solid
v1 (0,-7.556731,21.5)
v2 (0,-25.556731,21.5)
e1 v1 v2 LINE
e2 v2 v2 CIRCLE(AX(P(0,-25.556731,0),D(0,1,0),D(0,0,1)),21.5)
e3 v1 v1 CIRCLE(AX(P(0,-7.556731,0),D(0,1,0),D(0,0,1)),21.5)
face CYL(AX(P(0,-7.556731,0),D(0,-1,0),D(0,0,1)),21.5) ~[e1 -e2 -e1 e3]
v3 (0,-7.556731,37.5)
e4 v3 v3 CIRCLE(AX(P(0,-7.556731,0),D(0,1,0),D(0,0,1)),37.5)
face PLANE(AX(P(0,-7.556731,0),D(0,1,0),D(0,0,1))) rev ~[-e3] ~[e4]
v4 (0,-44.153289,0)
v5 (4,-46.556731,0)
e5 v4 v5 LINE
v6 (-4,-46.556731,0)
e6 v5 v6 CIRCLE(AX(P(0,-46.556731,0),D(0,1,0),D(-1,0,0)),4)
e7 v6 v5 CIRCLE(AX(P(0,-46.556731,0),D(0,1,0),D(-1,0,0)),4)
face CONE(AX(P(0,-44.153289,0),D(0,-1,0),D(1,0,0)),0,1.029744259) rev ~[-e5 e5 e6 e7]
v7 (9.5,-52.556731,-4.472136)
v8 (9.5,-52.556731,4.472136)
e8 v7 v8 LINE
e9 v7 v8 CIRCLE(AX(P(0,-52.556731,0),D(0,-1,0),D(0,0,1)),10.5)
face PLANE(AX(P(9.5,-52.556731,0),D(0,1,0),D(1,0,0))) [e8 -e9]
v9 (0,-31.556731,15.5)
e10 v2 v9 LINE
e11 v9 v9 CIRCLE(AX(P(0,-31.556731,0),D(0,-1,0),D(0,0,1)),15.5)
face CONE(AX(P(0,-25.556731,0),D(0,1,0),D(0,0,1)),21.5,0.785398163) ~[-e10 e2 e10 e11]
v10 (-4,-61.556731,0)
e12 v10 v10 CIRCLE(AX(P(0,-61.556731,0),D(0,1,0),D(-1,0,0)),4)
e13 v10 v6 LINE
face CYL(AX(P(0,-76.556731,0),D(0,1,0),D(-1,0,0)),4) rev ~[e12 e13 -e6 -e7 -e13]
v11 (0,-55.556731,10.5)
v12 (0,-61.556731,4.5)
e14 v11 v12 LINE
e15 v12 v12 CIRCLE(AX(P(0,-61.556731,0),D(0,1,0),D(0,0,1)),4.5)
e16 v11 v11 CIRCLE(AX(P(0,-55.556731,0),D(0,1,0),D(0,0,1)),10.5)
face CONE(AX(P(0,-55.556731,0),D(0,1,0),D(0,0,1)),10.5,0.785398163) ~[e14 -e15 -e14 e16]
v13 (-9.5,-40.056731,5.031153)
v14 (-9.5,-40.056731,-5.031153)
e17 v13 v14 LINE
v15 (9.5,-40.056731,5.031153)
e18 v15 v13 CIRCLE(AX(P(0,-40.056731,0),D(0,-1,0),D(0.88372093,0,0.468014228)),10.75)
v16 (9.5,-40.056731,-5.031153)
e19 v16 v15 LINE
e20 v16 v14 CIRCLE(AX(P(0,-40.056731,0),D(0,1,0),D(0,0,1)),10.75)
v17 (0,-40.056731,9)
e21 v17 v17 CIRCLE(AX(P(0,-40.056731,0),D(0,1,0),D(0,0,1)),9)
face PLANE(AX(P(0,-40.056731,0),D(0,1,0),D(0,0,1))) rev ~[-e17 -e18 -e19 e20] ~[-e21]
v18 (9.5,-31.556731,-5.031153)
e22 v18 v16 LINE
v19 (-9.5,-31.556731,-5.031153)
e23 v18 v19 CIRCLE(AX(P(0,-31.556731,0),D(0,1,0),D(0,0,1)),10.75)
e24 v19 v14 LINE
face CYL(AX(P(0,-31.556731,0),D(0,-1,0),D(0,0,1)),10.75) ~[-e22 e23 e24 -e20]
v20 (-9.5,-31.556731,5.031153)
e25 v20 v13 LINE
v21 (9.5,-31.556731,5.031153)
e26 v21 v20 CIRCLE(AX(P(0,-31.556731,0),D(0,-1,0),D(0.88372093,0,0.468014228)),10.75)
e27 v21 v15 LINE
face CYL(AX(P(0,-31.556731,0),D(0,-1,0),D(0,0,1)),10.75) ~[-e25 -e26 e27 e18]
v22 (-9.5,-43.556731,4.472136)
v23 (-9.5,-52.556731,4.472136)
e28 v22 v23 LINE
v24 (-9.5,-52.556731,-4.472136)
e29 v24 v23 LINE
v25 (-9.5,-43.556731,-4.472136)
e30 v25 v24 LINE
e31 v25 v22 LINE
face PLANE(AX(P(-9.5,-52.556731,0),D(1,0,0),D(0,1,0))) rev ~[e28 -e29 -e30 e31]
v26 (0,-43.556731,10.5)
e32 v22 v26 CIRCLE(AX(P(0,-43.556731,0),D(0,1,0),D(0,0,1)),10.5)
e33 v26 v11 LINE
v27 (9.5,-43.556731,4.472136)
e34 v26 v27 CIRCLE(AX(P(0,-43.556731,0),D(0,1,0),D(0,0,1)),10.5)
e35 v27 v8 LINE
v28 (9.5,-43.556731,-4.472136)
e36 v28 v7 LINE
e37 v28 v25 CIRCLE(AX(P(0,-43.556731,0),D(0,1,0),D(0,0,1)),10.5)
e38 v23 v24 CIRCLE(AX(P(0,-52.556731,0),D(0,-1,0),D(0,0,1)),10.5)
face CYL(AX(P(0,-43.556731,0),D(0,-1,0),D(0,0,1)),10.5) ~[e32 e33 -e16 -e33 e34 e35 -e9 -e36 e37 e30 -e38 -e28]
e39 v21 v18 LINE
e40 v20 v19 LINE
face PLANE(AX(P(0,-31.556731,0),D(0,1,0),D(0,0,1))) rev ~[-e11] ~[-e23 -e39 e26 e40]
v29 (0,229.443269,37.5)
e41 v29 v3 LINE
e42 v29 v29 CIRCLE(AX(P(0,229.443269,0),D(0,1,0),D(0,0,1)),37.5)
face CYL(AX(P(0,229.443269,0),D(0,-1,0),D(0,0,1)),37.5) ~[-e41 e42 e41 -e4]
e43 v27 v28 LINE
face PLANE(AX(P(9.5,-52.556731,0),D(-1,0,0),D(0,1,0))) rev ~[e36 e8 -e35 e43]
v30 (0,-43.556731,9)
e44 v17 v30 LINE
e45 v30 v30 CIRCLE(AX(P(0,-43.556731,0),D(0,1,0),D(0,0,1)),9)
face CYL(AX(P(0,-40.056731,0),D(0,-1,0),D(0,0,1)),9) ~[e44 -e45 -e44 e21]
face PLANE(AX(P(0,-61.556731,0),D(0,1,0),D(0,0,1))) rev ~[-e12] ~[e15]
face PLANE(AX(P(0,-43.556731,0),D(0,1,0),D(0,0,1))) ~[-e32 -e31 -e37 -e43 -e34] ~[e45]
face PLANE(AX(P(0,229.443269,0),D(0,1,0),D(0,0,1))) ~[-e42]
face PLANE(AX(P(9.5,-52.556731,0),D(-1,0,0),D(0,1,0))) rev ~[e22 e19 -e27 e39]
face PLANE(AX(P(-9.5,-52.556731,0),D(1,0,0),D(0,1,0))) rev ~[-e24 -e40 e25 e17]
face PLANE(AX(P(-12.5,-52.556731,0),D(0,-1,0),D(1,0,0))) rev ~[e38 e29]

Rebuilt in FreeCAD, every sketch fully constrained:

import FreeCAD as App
import Part
import Sketcher
from FreeCAD import Vector
Q = App.Units.Quantity

doc = App.newDocument("Part")
params = doc.addObject("Spreadsheet::Sheet", "Params")
for row, (alias, value) in enumerate([
    ("sketch1_width", "291 mm"),
    ("sketch1_width2", "237 mm"),
    ("sketch1_width3", "18 mm"),
    ("sketch1_width4", "12 mm"),
    ("sketch1_height", "16 mm"),
    ("revolution_angle", "360 deg"),
    ("sketch2_diameter", "8 mm"),
    ("hole_diameter", "8 mm"),
    ("hole_depth", "15 mm"),
    ("sketch3_width", "3 mm"),
    ("sketch3_height", "21 mm"),
    ("pocket1_length", "25 mm"),
], start=1):
    params.set(f"A{row}", alias)
    params.set(f"B{row}", "=" + value)
    params.setAlias(f"B{row}", alias)

body = doc.addObject("PartDesign::Body", "Body")

# Sketch on YZ plane
sketch1 = doc.addObject("Sketcher::SketchObject", "Sketch")
body.addObject(sketch1)
sketch1.AttachmentSupport = (doc.YZ_Plane, [""])
sketch1.MapMode = "FlatFace"
sketch1.addGeometry([
    Part.LineSegment(Vector(-61.6, 4.5, 0), Vector(-61.6, 0, 0)),  # 0
    Part.LineSegment(Vector(-61.6, 0, 0), Vector(229.4, 0, 0)),  # 1
    Part.LineSegment(Vector(229.4, 0, 0), Vector(229.4, 37.5, 0)),  # 2
    Part.LineSegment(Vector(229.4, 37.5, 0), Vector(-7.6, 37.5, 0)),  # 3
    Part.LineSegment(Vector(-7.6, 37.5, 0), Vector(-7.6, 21.5, 0)),  # 4
    Part.LineSegment(Vector(-7.6, 21.5, 0), Vector(-25.6, 21.5, 0)),  # 5
    Part.LineSegment(Vector(-25.6, 21.5, 0), Vector(-31.6, 15.5, 0)),  # 6
    Part.LineSegment(Vector(-31.6, 15.5, 0), Vector(-31.6, 10.8, 0)),  # 7
    Part.LineSegment(Vector(-31.6, 10.8, 0), Vector(-40.1, 10.8, 0)),  # 8
    Part.LineSegment(Vector(-40.1, 10.8, 0), Vector(-40.1, 9, 0)),  # 9
    Part.LineSegment(Vector(-40.1, 9, 0), Vector(-43.6, 9, 0)),  # 10
    Part.LineSegment(Vector(-43.6, 9, 0), Vector(-43.6, 10.5, 0)),  # 11
    Part.LineSegment(Vector(-43.6, 10.5, 0), Vector(-55.6, 10.5, 0)),  # 12
    Part.LineSegment(Vector(-55.6, 10.5, 0), Vector(-61.6, 4.5, 0)),  # 13
], False)
sketch1.addConstraint([
    Sketcher.Constraint("Coincident", 0, 2, 1, 1),
    Sketcher.Constraint("Coincident", 1, 2, 2, 1),
    Sketcher.Constraint("Coincident", 2, 2, 3, 1),
    Sketcher.Constraint("Coincident", 3, 2, 4, 1),
    Sketcher.Constraint("Coincident", 4, 2, 5, 1),
    Sketcher.Constraint("Coincident", 5, 2, 6, 1),
    Sketcher.Constraint("Coincident", 6, 2, 7, 1),
    Sketcher.Constraint("Coincident", 7, 2, 8, 1),
    Sketcher.Constraint("Coincident", 8, 2, 9, 1),
    Sketcher.Constraint("Coincident", 9, 2, 10, 1),
    Sketcher.Constraint("Coincident", 10, 2, 11, 1),
    Sketcher.Constraint("Coincident", 11, 2, 12, 1),
    Sketcher.Constraint("Coincident", 12, 2, 13, 1),
    Sketcher.Constraint("Coincident", 13, 2, 0, 1),
    Sketcher.Constraint("Vertical", 0),
    Sketcher.Constraint("Horizontal", 1),
    Sketcher.Constraint("Vertical", 2),
    Sketcher.Constraint("Horizontal", 3),
    Sketcher.Constraint("Vertical", 4),
    Sketcher.Constraint("Horizontal", 5),
    Sketcher.Constraint("Vertical", 7),
    Sketcher.Constraint("Horizontal", 8),
    Sketcher.Constraint("Vertical", 9),
    Sketcher.Constraint("Horizontal", 10),
    Sketcher.Constraint("Vertical", 11),
    Sketcher.Constraint("Horizontal", 12),
    Sketcher.Constraint("PointOnObject", 0, 2, -1),
    Sketcher.Constraint("Parallel", 6, 13),
    Sketcher.Constraint("Equal", 6, 13),
    Sketcher.Constraint("DistanceX", 1, 1, 1, 2, 291.0),
    Sketcher.Constraint("DistanceX", 3, 2, 3, 1, 237.0),
    Sketcher.Constraint("DistanceX", 5, 2, 5, 1, 18.0),
    Sketcher.Constraint("DistanceX", 12, 2, 12, 1, 12.0),
    Sketcher.Constraint("DistanceY", 4, 2, 4, 1, 16.0),
    Sketcher.Constraint("Angle", 6, Q("-135 deg")),
    Sketcher.Constraint("DistanceX", 8, 2, 8, 1, 8.5),
    Sketcher.Constraint("DistanceX", 10, 2, 10, 1, 3.5),
    Sketcher.Constraint("DistanceY", 0, 2, 0, 1, 4.5),
    Sketcher.Constraint("DistanceY", 2, 1, 2, 2, 37.5),
    Sketcher.Constraint("DistanceY", 11, 1, 11, 2, 1.5),
    Sketcher.Constraint("DistanceY", 7, 2, 7, 1, 4.75),
    Sketcher.Constraint("DistanceX", 0, 2, -1, 1, 61.556731),
])
sketch1.setExpression("Constraints[29]", "Params.sketch1_width")
sketch1.setExpression("Constraints[30]", "Params.sketch1_width2")
sketch1.setExpression("Constraints[31]", "Params.sketch1_width3")
sketch1.setExpression("Constraints[32]", "Params.sketch1_width4")
sketch1.setExpression("Constraints[33]", "Params.sketch1_height")
revolution = doc.addObject("PartDesign::Revolution", "Revolution")
body.addObject(revolution)
revolution.Profile = sketch1
revolution.ReferenceAxis = (sketch1, ["H_Axis"])
revolution.setExpression("Angle", "Params.revolution_angle")

# Sketch on XZ plane
sketch2 = doc.addObject("Sketcher::SketchObject", "Sketch001")
body.addObject(sketch2)
sketch2.AttachmentSupport = (doc.XZ_Plane, [""])
sketch2.MapMode = "FlatFace"
sketch2.AttachmentOffset = App.Placement(Vector(0, 0, 61.556731), App.Rotation())
sketch2.addGeometry(Part.Circle(Vector(0, 0, 0), Vector(0, 0, 1), 4), False)
sketch2.addConstraint([
    Sketcher.Constraint("Coincident", 0, 3, -1, 1),
    Sketcher.Constraint("Diameter", 0, 8.0),
])
sketch2.setExpression("Constraints[1]", "Params.sketch2_diameter")
doc.recompute()
hole = doc.addObject("PartDesign::Hole", "Hole")
body.addObject(hole)
hole.Profile = sketch2
hole.ThreadType = "None"
hole.setExpression("Diameter", "Params.hole_diameter")
hole.DepthType = "Dimension"
hole.setExpression("Depth", "Params.hole_depth")
hole.DrillPoint = "Angled"
hole.DrillPointAngle = 118

# Sketch on XY plane
sketch3 = doc.addObject("Sketcher::SketchObject", "Sketch002")
body.addObject(sketch3)
sketch3.AttachmentSupport = (doc.XY_Plane, [""])
sketch3.MapMode = "FlatFace"
sketch3.addGeometry([
    Part.LineSegment(Vector(9.5, -31.6, 0), Vector(9.5, -52.6, 0)),  # 0
    Part.LineSegment(Vector(9.5, -52.6, 0), Vector(12.5, -52.6, 0)),  # 1
    Part.LineSegment(Vector(12.5, -52.6, 0), Vector(12.5, -31.6, 0)),  # 2
    Part.LineSegment(Vector(12.5, -31.6, 0), Vector(9.5, -31.6, 0)),  # 3
    Part.LineSegment(Vector(-12.5, -31.6, 0), Vector(-12.5, -52.6, 0)),  # 4
    Part.LineSegment(Vector(-12.5, -52.6, 0), Vector(-9.5, -52.6, 0)),  # 5
    Part.LineSegment(Vector(-9.5, -52.6, 0), Vector(-9.5, -31.6, 0)),  # 6
    Part.LineSegment(Vector(-9.5, -31.6, 0), Vector(-12.5, -31.6, 0)),  # 7
], False)
sketch3.addConstraint([
    Sketcher.Constraint("Coincident", 0, 2, 1, 1),
    Sketcher.Constraint("Coincident", 1, 2, 2, 1),
    Sketcher.Constraint("Coincident", 2, 2, 3, 1),
    Sketcher.Constraint("Coincident", 3, 2, 0, 1),
    Sketcher.Constraint("Coincident", 4, 2, 5, 1),
    Sketcher.Constraint("Coincident", 5, 2, 6, 1),
    Sketcher.Constraint("Coincident", 6, 2, 7, 1),
    Sketcher.Constraint("Coincident", 7, 2, 4, 1),
    Sketcher.Constraint("Vertical", 0),
    Sketcher.Constraint("Horizontal", 1),
    Sketcher.Constraint("Vertical", 2),
    Sketcher.Constraint("Horizontal", 3),
    Sketcher.Constraint("Vertical", 4),
    Sketcher.Constraint("Horizontal", 5),
    Sketcher.Constraint("Vertical", 6),
    Sketcher.Constraint("Horizontal", 7),
    Sketcher.Constraint("Symmetric", 1, 2, 4, 2, -2),
    Sketcher.Constraint("Symmetric", 3, 2, 6, 2, -2),
    Sketcher.Constraint("DistanceX", 1, 1, 1, 2, 3.0),
    Sketcher.Constraint("DistanceY", 0, 2, 0, 1, 21.0),
    Sketcher.Constraint("DistanceX", 4, 2, 0, 2, 22.0),
    Sketcher.Constraint("DistanceY", 0, 2, -1, 1, 52.556731),
])
sketch3.setExpression("Constraints[18]", "Params.sketch3_width")
sketch3.setExpression("Constraints[19]", "Params.sketch3_height")
pocket1 = doc.addObject("PartDesign::Pocket", "Pocket")
body.addObject(pocket1)
pocket1.Profile = sketch3
pocket1.setExpression("Length", "Params.pocket1_length")
pocket1.Midplane = True

doc.recompute()
